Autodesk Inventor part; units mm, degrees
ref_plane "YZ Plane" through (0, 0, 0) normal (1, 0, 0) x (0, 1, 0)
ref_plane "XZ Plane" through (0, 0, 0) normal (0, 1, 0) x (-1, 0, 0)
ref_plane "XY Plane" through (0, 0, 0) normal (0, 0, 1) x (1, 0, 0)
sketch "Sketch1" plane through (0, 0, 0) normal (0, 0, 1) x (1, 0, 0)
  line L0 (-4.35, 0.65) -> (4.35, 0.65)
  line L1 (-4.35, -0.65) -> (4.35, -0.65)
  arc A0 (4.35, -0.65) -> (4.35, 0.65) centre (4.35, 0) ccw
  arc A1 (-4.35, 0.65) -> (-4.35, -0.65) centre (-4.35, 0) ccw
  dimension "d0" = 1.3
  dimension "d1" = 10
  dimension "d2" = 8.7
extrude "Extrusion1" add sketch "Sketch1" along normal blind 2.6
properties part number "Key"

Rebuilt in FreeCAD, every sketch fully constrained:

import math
import FreeCAD as App
import Part
import Sketcher

V = App.Vector

doc = App.newDocument("Part")
params = doc.addObject("Spreadsheet::Sheet", "Params")
for row, (alias, value) in enumerate([
    ("sketch1_radius", "0.65 mm"),
    ("sketch1_width", "8.7 mm"),
    ("pad1_length", "2.6 mm"),
], start=1):
    params.set(f"A{row}", alias)
    params.set(f"B{row}", "=" + value)
    params.setAlias(f"B{row}", alias)

body = doc.addObject("PartDesign::Body", "Body")

sketch1 = body.newObject("Sketcher::SketchObject", "Sketch")
sketch1.AttachmentSupport = (doc.getObject("XY_Plane"), [""])
sketch1.MapMode = "FlatFace"
sketch1.addGeometry([
    Part.LineSegment(V(4.35, 0.65, 0), V(-4.35, 0.65, 0)),
    Part.ArcOfCircle(Part.Circle(V(-4.35, 0, 0), V(0, 0, 1), 0.65), math.radians(90), math.radians(270)),
    Part.LineSegment(V(-4.35, -0.65, 0), V(4.35, -0.65, 0)),
    Part.ArcOfCircle(Part.Circle(V(4.35, 0, 0), V(0, 0, 1), 0.65), math.radians(-90), math.radians(90)),
], False)
sketch1.addConstraint([
    Sketcher.Constraint("Tangent", 0, 2, 1, 1),
    Sketcher.Constraint("Tangent", 1, 2, 2, 1),
    Sketcher.Constraint("Tangent", 2, 2, 3, 1),
    Sketcher.Constraint("Tangent", 3, 2, 0, 1),
    Sketcher.Constraint("Horizontal", 0),
    Sketcher.Constraint("Horizontal", 2),
    Sketcher.Constraint("Symmetric", 1, 3, 3, 3, -1, 1),
    Sketcher.Constraint("Radius", 1, 0.65),
    Sketcher.Constraint("DistanceX", 0, 2, 0, 1, 8.7),
])
sketch1.setExpression("Constraints[7]", "Params.sketch1_radius")
sketch1.setExpression("Constraints[8]", "Params.sketch1_width")
pad1 = body.newObject("PartDesign::Pad", "Pad")
pad1.Profile = sketch1
pad1.setExpression("Length", "Params.pad1_length")

doc.recompute()
